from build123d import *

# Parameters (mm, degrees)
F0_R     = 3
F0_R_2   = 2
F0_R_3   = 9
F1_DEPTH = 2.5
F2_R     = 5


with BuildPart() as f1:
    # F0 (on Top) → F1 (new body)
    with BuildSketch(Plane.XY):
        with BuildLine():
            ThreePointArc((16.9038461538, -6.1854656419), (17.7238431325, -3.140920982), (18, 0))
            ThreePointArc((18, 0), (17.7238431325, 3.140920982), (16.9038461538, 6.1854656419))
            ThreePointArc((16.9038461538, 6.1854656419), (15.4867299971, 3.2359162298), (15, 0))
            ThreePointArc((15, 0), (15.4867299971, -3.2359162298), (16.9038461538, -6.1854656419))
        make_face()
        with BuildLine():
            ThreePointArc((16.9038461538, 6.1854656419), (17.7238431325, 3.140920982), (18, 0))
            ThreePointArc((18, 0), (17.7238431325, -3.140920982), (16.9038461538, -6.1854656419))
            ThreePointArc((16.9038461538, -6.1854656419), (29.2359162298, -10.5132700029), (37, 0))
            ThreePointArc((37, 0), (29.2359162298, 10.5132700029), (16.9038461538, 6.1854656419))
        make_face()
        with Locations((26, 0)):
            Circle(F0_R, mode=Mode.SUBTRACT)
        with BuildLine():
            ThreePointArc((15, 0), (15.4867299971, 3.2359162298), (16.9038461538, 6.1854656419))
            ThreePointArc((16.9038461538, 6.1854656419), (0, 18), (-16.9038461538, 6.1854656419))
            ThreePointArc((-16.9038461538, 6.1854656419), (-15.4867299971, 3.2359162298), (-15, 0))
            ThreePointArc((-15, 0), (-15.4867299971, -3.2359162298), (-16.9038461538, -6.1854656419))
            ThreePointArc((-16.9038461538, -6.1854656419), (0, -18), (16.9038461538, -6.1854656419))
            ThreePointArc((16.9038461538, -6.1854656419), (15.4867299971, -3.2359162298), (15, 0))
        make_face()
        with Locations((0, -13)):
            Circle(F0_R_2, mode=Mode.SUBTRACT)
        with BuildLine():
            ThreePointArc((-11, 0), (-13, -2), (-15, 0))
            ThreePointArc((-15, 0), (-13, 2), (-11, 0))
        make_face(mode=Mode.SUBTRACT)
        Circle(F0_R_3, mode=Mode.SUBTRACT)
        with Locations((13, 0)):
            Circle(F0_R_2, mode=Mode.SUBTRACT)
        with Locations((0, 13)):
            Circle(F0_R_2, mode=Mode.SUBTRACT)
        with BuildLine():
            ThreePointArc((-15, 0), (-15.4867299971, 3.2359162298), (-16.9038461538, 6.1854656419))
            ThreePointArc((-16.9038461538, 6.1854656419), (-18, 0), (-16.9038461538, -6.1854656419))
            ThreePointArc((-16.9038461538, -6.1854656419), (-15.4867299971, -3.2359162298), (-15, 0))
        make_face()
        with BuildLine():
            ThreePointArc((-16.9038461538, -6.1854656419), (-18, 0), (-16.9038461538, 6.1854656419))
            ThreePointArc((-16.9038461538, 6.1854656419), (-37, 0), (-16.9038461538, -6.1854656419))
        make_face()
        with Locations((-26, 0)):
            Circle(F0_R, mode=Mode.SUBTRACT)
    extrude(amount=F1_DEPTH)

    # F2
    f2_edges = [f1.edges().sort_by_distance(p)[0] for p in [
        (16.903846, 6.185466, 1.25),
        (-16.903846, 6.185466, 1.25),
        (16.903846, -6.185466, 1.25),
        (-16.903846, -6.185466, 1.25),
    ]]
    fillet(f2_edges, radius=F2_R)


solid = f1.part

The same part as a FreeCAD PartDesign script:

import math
import FreeCAD as App
import Part
import Sketcher
Q = App.Units.Quantity


def edges_at(feature, points):
    """Names of the edges that pass closest to the given points."""
    edges = feature.Shape.Edges
    near = lambda p: min(range(len(edges)), key=lambda i: edges[i].distToShape(Part.Vertex(*p))[0])
    return sorted({f"Edge{near(p) + 1}" for p in points})

doc = App.newDocument("Part")
body = doc.addObject("PartDesign::Body", "Body")

sketch1 = body.newObject("Sketcher::SketchObject", "Sketch")
sketch1.AttachmentSupport = (doc.getObject("XY_Plane"), [""])
sketch1.MapMode = "FlatFace"
sketch1.addGeometry([
    Part.ArcOfCircle(Part.Circle(App.Vector(0, 0, 0), App.Vector(0, 0, 1), 18), math.radians(20.098614), math.radians(159.901386)),
    Part.ArcOfCircle(Part.Circle(App.Vector(-26, 0, 0), App.Vector(0, 0, 1), 11), math.radians(34.216051), math.radians(325.783949)),
    Part.ArcOfCircle(Part.Circle(App.Vector(0, 0, 0), App.Vector(0, 0, 1), 18), math.radians(-159.901386), math.radians(-20.098614)),
    Part.ArcOfCircle(Part.Circle(App.Vector(26, 0, 0), App.Vector(0, 0, 1), 11), math.radians(-145.783949), math.radians(0)),
    Part.ArcOfCircle(Part.Circle(App.Vector(26, 0, 0), App.Vector(0, 0, 1), 11), math.radians(0), math.radians(145.783949)),
    Part.Circle(App.Vector(0, -13, 0), App.Vector(0, 0, 1), 2),
    Part.Circle(App.Vector(-26, 0, 0), App.Vector(0, 0, 1), 3),
    Part.Circle(App.Vector(-13, 0, 0), App.Vector(0, 0, 1), 2),
    Part.Circle(App.Vector(0, 0, 0), App.Vector(0, 0, 1), 9),
    Part.Circle(App.Vector(13, 0, 0), App.Vector(0, 0, 1), 2),
    Part.Circle(App.Vector(26, 0, 0), App.Vector(0, 0, 1), 3),
    Part.Circle(App.Vector(0, 13, 0), App.Vector(0, 0, 1), 2),
], False)
sketch1.addConstraint([
    Sketcher.Constraint("Coincident", 0, 2, 1, 1),
    Sketcher.Constraint("Coincident", 1, 2, 2, 1),
    Sketcher.Constraint("Coincident", 2, 2, 3, 1),
    Sketcher.Constraint("Tangent", 3, 2, 4, 1),
    Sketcher.Constraint("Coincident", 4, 2, 0, 1),
    Sketcher.Constraint("Coincident", 0, 3, -1, 1),
    Sketcher.Constraint("Coincident", 2, 3, -1, 1),
    Sketcher.Constraint("Coincident", 8, 3, -1, 1),
    Sketcher.Constraint("Coincident", 6, 3, 1, 3),
    Sketcher.Constraint("Coincident", 10, 3, 3, 3),
    Sketcher.Constraint("Equal", 0, 2),
    Sketcher.Constraint("Equal", 1, 3),
    Sketcher.Constraint("Equal", 3, 4),
    Sketcher.Constraint("Equal", 5, 7),
    Sketcher.Constraint("Equal", 7, 9),
    Sketcher.Constraint("Equal", 6, 10),
    Sketcher.Constraint("Equal", 9, 11),
    Sketcher.Constraint("Symmetric", 1, 3, 3, 3, -1, 1),
    Sketcher.Constraint("Symmetric", 7, 3, 9, 3, -1, 1),
    Sketcher.Constraint("Symmetric", 5, 3, 11, 3, -1, 1),
    Sketcher.Constraint("PointOnObject", 1, 3, -1),
    Sketcher.Constraint("PointOnObject", 5, 3, -2),
    Sketcher.Constraint("PointOnObject", 7, 3, -1),
    Sketcher.Constraint("PointOnObject", 3, 2, -1),
    Sketcher.Constraint("Diameter", 5, Q("4 mm")),
    Sketcher.Constraint("Diameter", 6, Q("6 mm")),
    Sketcher.Constraint("Diameter", 8, Q("18 mm")),
    Sketcher.Constraint("Radius", 0, Q("18 mm")),
    Sketcher.Constraint("Radius", 1, Q("11 mm")),
    Sketcher.Constraint("DistanceX", 1, 3, -1, 1, Q("26 mm")),
    Sketcher.Constraint("DistanceY", 5, 3, -1, 1, Q("13 mm")),
    Sketcher.Constraint("DistanceX", 7, 3, -1, 1, Q("13 mm")),
])
pad1 = body.newObject("PartDesign::Pad", "Pad")
pad1.Profile = sketch1
pad1.Length = 2.5
doc.recompute()

fillet = body.newObject("PartDesign::Fillet", "Fillet")
fillet.Base = (pad1, edges_at(pad1, [
    (16.904, 6.185, 1.25),
    (-16.904, 6.185, 1.25),
    (16.904, -6.185, 1.25),
    (-16.904, -6.185, 1.25),
]))
fillet.Radius = 5

doc.recompute()
